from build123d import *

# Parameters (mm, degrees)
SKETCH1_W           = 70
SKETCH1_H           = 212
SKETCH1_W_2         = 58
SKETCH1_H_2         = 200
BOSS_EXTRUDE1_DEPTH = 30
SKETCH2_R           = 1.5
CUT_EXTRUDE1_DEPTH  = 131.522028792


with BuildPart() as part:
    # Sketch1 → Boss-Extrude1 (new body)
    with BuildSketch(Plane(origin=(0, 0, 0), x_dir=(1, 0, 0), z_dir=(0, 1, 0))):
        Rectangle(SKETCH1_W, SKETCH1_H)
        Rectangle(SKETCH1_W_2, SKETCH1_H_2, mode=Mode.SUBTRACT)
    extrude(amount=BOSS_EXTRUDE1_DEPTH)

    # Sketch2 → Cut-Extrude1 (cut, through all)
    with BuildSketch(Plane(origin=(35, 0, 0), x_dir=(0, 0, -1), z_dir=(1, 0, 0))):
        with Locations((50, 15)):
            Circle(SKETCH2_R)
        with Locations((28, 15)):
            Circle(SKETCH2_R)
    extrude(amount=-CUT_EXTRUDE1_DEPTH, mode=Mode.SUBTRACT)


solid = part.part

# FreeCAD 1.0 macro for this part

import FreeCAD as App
import Part
import Sketcher

V = App.Vector


def add_polygon(sketch, points):
    """Adds a closed chain of lines whose ends are joined by coincident constraints."""
    first, n = sketch.GeometryCount, len(points)
    for a, b in zip(points, points[1:] + points[:1]):
        sketch.addGeometry(Part.LineSegment(App.Vector(*a, 0), App.Vector(*b, 0)), False)
    for i in range(n):
        sketch.addConstraint(Sketcher.Constraint("Coincident", first + i, 2, first + (i + 1) % n, 1))

doc = App.newDocument("Part")
body = doc.addObject("PartDesign::Body", "Body")

sketch1 = body.newObject("Sketcher::SketchObject", "Sketch")
sketch1.AttachmentSupport = (doc.getObject("XZ_Plane"), [""])
sketch1.MapMode = "FlatFace"
add_polygon(sketch1, [(-35, -106), (-35, 106), (35, 106), (35, -106)])
add_polygon(sketch1, [(29, 100), (-29, 100), (-29, -100), (29, -100)])
sketch1.addConstraint([
    Sketcher.Constraint("Vertical", 0),
    Sketcher.Constraint("Horizontal", 1),
    Sketcher.Constraint("Vertical", 2),
    Sketcher.Constraint("Horizontal", 3),
    Sketcher.Constraint("Horizontal", 4),
    Sketcher.Constraint("Vertical", 5),
    Sketcher.Constraint("Horizontal", 6),
    Sketcher.Constraint("Vertical", 7),
    Sketcher.Constraint("Symmetric", 0, 2, 2, 2, -1, 1),
    Sketcher.Constraint("Symmetric", 4, 2, 6, 2, -1, 1),
    Sketcher.Constraint("DistanceX", 1, 1, 1, 2, 70.0),
    Sketcher.Constraint("DistanceX", 4, 2, 4, 1, 58.0),
    Sketcher.Constraint("DistanceY", 0, 1, 0, 2, 212.0),
    Sketcher.Constraint("DistanceY", 5, 2, 5, 1, 200.0),
])
pad1 = body.newObject("PartDesign::Pad", "Pad")
pad1.Profile = sketch1
pad1.Length = 30
pad1.Reversed = True

sketch2 = body.newObject("Sketcher::SketchObject", "Sketch001")
sketch2.AttachmentSupport = (doc.getObject("YZ_Plane"), [""])
sketch2.MapMode = "FlatFace"
sketch2.AttachmentOffset = App.Placement(V(0, 0, 35), App.Rotation())
sketch2.addGeometry([
    Part.Circle(V(15, -50, 0), V(0, 0, 1), 1.5),
    Part.Circle(V(15, -28, 0), V(0, 0, 1), 1.5),
], False)
sketch2.addConstraint([
    Sketcher.Constraint("Equal", 0, 1),
    Sketcher.Constraint("Vertical", 0, 3, 1, 3),
    Sketcher.Constraint("Diameter", 0, 3.0),
    Sketcher.Constraint("DistanceX", -1, 1, 0, 3, 15.0),
    Sketcher.Constraint("DistanceY", 0, 3, -1, 1, 50.0),
    Sketcher.Constraint("DistanceY", 1, 3, -1, 1, 28.0),
])
pocket1 = body.newObject("PartDesign::Pocket", "Pocket")
pocket1.Profile = sketch2
pocket1.Type = "ThroughAll"

doc.recompute()
